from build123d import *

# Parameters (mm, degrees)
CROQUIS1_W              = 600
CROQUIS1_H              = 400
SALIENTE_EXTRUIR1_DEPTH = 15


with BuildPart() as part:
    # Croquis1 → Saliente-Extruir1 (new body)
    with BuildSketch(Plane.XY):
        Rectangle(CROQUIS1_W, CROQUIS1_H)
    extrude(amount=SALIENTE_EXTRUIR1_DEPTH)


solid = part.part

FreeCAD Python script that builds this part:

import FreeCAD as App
import Part
import Sketcher
from FreeCAD import Vector
Q = App.Units.Quantity

doc = App.newDocument("Part")
body = doc.addObject("PartDesign::Body", "Body")

# Sketch on XY plane
sketch1 = body.newObject("Sketcher::SketchObject", "Sketch")
sketch1.AttachmentSupport = (doc.getObject("XY_Plane"), [""])
sketch1.MapMode = "FlatFace"
sketch1.addGeometry([
    Part.LineSegment(Vector(-300, 200, 0), Vector(-300, -200, 0)),
    Part.LineSegment(Vector(-300, -200, 0), Vector(300, -200, 0)),
    Part.LineSegment(Vector(300, -200, 0), Vector(300, 200, 0)),
    Part.LineSegment(Vector(300, 200, 0), Vector(-300, 200, 0)),
], False)
sketch1.addConstraint([
    Sketcher.Constraint("Coincident", 0, 2, 1, 1),
    Sketcher.Constraint("Coincident", 1, 2, 2, 1),
    Sketcher.Constraint("Coincident", 2, 2, 3, 1),
    Sketcher.Constraint("Coincident", 3, 2, 0, 1),
    Sketcher.Constraint("Vertical", 0),
    Sketcher.Constraint("Horizontal", 1),
    Sketcher.Constraint("Vertical", 2),
    Sketcher.Constraint("Horizontal", 3),
    Sketcher.Constraint("Symmetric", 0, 2, 2, 2, -1, 1),
    Sketcher.Constraint("DistanceX", 1, 1, 1, 2, Q("600 mm")),
    Sketcher.Constraint("DistanceY", 0, 2, 0, 1, Q("400 mm")),
])
pad1 = body.newObject("PartDesign::Pad", "Pad")
pad1.Profile = sketch1
pad1.Length = 15

doc.recompute()
